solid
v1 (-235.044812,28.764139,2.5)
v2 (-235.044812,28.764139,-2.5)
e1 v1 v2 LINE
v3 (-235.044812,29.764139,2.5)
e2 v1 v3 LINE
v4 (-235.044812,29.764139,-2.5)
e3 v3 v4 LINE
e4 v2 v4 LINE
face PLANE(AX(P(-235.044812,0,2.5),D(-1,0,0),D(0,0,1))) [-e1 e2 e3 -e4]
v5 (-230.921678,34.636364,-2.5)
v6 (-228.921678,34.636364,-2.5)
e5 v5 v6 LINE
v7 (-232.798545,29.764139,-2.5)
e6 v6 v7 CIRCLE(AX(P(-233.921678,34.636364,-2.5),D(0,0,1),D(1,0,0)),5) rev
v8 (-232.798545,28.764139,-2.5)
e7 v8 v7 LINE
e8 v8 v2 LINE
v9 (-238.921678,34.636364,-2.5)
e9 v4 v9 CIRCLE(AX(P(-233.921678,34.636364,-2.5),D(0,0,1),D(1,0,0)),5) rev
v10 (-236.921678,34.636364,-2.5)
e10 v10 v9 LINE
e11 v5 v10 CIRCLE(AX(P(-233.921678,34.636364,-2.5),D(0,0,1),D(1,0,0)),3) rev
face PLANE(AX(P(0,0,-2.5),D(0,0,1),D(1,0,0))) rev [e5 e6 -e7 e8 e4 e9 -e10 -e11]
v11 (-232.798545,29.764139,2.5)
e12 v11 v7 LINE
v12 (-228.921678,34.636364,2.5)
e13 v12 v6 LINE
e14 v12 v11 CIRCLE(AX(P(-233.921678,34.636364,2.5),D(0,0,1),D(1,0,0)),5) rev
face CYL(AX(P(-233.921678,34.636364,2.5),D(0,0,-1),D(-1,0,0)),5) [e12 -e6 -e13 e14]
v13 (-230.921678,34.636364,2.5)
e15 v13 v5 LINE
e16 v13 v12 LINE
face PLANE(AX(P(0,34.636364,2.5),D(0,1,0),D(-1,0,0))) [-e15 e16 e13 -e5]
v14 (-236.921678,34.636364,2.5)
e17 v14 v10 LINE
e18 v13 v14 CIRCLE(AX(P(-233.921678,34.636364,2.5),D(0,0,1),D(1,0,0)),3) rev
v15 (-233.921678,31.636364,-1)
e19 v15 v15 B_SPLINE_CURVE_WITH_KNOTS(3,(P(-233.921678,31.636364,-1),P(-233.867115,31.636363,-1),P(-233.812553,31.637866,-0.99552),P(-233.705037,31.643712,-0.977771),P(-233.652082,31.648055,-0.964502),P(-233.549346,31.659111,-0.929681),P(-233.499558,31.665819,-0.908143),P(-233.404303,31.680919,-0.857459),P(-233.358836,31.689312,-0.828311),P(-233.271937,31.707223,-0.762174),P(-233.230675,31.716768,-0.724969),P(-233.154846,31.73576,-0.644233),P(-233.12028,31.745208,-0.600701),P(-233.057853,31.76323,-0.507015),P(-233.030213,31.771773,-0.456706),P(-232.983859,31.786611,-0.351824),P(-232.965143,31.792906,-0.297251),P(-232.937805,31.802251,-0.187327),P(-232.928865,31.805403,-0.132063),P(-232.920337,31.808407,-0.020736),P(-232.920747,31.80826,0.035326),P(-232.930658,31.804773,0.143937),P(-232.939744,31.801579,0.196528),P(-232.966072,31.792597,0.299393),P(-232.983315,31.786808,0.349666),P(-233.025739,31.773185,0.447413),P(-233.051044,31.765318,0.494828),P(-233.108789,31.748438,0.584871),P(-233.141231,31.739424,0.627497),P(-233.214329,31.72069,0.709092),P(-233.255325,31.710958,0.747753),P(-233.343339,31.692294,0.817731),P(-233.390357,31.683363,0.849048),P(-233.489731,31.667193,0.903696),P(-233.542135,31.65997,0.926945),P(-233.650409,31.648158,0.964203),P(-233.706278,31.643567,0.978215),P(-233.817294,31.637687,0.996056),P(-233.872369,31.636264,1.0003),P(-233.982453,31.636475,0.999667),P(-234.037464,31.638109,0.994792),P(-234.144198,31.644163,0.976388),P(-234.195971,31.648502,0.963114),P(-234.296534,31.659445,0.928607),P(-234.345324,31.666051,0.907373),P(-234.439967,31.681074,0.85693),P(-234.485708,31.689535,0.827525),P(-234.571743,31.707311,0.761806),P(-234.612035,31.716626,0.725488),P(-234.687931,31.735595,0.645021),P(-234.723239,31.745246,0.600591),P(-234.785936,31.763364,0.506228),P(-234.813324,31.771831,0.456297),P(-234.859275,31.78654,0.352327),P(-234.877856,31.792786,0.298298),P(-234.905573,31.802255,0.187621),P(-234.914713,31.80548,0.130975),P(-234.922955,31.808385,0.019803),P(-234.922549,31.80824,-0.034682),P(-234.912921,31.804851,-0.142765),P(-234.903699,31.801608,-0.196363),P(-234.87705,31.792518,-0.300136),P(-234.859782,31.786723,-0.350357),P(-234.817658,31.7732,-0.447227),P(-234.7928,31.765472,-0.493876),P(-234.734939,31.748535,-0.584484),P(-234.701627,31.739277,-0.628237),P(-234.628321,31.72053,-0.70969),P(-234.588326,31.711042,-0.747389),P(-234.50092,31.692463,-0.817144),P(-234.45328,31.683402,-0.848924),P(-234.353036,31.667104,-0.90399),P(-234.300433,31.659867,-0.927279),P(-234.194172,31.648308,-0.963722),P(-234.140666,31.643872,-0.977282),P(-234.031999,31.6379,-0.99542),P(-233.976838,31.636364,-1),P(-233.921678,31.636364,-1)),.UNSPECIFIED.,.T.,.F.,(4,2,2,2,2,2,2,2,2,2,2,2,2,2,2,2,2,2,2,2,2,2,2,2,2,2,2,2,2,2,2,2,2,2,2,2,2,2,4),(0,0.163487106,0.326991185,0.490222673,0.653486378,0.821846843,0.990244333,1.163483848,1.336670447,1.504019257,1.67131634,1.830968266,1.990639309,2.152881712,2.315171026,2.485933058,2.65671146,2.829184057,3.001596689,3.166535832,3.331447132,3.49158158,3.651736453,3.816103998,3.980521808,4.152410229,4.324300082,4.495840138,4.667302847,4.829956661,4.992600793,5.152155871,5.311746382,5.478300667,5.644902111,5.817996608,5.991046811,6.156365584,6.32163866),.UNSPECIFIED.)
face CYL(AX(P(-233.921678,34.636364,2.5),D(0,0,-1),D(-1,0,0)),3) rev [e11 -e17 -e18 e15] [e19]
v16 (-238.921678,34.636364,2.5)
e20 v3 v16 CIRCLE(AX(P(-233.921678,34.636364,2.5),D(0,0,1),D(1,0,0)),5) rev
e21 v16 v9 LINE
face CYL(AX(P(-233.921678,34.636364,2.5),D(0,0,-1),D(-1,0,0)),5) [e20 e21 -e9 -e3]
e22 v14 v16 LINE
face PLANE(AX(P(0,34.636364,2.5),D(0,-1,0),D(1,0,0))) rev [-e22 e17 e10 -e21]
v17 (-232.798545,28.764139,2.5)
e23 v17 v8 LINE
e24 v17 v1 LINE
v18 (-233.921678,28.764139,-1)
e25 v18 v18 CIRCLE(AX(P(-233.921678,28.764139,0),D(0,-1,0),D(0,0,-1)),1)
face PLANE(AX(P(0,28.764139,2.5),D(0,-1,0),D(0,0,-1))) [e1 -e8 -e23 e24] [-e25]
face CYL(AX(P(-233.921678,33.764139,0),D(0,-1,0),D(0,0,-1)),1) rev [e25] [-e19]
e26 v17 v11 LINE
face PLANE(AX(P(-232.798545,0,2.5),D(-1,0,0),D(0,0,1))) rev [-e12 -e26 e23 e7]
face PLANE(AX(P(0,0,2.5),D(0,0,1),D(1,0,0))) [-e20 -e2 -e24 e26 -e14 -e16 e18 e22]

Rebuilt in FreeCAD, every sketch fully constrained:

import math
import FreeCAD as App
import Part
import Sketcher

V = App.Vector

doc = App.newDocument("Part")
body = doc.addObject("PartDesign::Body", "Body")

sketch1 = body.newObject("Sketcher::SketchObject", "Sketch")
sketch1.AttachmentSupport = (doc.getObject("XY_Plane"), [""])
sketch1.MapMode = "FlatFace"
sketch1.addGeometry(Part.ArcOfCircle(Part.Circle(V(-233.921678, 34.636364, 0), V(0, 0, 1), 3), math.radians(-90), math.radians(0)), False)
sketch1.addGeometry(Part.ArcOfCircle(Part.Circle(V(-233.921678, 34.636364, 0), V(0, 0, 1), 3), math.radians(-180), math.radians(-90)), False)
sketch1.addGeometry(Part.LineSegment(V(-236.921678, 34.636364, 0), V(-238.921678, 34.636364, 0)), False)
sketch1.addGeometry(Part.ArcOfCircle(Part.Circle(V(-233.921678, 34.636364, 0), V(0, 0, 1), 5), math.radians(180), math.radians(257.019075)), False)
sketch1.addGeometry(Part.LineSegment(V(-235.044812, 29.764139, 0), V(-235.044812, 28.764139, 0)), False)
sketch1.addGeometry(Part.LineSegment(V(-235.044812, 28.764139, 0), V(-232.798545, 28.764139, 0)), False)
sketch1.addGeometry(Part.LineSegment(V(-232.798545, 28.764139, 0), V(-232.798545, 29.764139, 0)), False)
sketch1.addGeometry(Part.ArcOfCircle(Part.Circle(V(-233.921678, 34.636364, 0), V(0, 0, 1), 5), math.radians(-77.019075), math.radians(0)), False)
sketch1.addGeometry(Part.LineSegment(V(-228.921678, 34.636364, 0), V(-230.921678, 34.636364, 0)), False)
sketch1.addConstraint(Sketcher.Constraint("Tangent", 0, 1, 1, 2))
sketch1.addConstraint(Sketcher.Constraint("Coincident", 1, 1, 2, 1))
sketch1.addConstraint(Sketcher.Constraint("Coincident", 2, 2, 3, 1))
sketch1.addConstraint(Sketcher.Constraint("Coincident", 3, 2, 4, 1))
sketch1.addConstraint(Sketcher.Constraint("Coincident", 4, 2, 5, 1))
sketch1.addConstraint(Sketcher.Constraint("Coincident", 5, 2, 6, 1))
sketch1.addConstraint(Sketcher.Constraint("Coincident", 6, 2, 7, 1))
sketch1.addConstraint(Sketcher.Constraint("Coincident", 7, 2, 8, 1))
sketch1.addConstraint(Sketcher.Constraint("Coincident", 8, 2, 0, 2))
sketch1.addConstraint(Sketcher.Constraint("Horizontal", 2))
sketch1.addConstraint(Sketcher.Constraint("Vertical", 4))
sketch1.addConstraint(Sketcher.Constraint("Horizontal", 5))
sketch1.addConstraint(Sketcher.Constraint("Vertical", 6))
sketch1.addConstraint(Sketcher.Constraint("Horizontal", 8))
sketch1.addConstraint(Sketcher.Constraint("Coincident", 3, 3, 0, 3))
sketch1.addConstraint(Sketcher.Constraint("Coincident", 7, 3, 0, 3))
sketch1.addConstraint(Sketcher.Constraint("Equal", 0, 1))
sketch1.addConstraint(Sketcher.Constraint("Equal", 3, 7))
sketch1.addConstraint(Sketcher.Constraint("Horizontal", 7, 3, 1, 1))
sketch1.addConstraint(Sketcher.Constraint("Horizontal", 3, 2, 6, 2))
sketch1.addConstraint(Sketcher.Constraint("Horizontal", 2, 2, 7, 2))
sketch1.addConstraint(Sketcher.Constraint("Vertical", 7, 3, 0, 1))
sketch1.addConstraint(Sketcher.Constraint("Radius", 0, 3.0))
sketch1.addConstraint(Sketcher.Constraint("Radius", 3, 5.0))
sketch1.addConstraint(Sketcher.Constraint("DistanceY", 4, 2, 4, 1, 1.0))
sketch1.addConstraint(Sketcher.Constraint("DistanceX", 5, 1, 5, 2, 2.246266))
sketch1.addConstraint(Sketcher.Constraint("DistanceX", 0, 3, -1, 1, 233.921678))
sketch1.addConstraint(Sketcher.Constraint("DistanceY", -1, 1, 3, 2, 29.764139))
pad1 = body.newObject("PartDesign::Pad", "Pad")
pad1.Profile = sketch1
pad1.Length = 5
pad1.Midplane = True

sketch2 = body.newObject("Sketcher::SketchObject", "Sketch001")
sketch2.AttachmentSupport = (doc.getObject("XZ_Plane"), [""])
sketch2.MapMode = "FlatFace"
sketch2.AttachmentOffset = App.Placement(V(0, 0, -28.764139), App.Rotation())
sketch2.addGeometry(Part.Circle(V(-233.921678, 0, 0), V(0, 0, 1), 1), False)
sketch2.addConstraint(Sketcher.Constraint("PointOnObject", 0, 3, -1))
sketch2.addConstraint(Sketcher.Constraint("Diameter", 0, 2.0))
sketch2.addConstraint(Sketcher.Constraint("DistanceX", 0, 3, -1, 1, 233.921678))
pocket1 = body.newObject("PartDesign::Pocket", "Pocket")
pocket1.Profile = sketch2
pocket1.Length = 5

doc.recompute()
